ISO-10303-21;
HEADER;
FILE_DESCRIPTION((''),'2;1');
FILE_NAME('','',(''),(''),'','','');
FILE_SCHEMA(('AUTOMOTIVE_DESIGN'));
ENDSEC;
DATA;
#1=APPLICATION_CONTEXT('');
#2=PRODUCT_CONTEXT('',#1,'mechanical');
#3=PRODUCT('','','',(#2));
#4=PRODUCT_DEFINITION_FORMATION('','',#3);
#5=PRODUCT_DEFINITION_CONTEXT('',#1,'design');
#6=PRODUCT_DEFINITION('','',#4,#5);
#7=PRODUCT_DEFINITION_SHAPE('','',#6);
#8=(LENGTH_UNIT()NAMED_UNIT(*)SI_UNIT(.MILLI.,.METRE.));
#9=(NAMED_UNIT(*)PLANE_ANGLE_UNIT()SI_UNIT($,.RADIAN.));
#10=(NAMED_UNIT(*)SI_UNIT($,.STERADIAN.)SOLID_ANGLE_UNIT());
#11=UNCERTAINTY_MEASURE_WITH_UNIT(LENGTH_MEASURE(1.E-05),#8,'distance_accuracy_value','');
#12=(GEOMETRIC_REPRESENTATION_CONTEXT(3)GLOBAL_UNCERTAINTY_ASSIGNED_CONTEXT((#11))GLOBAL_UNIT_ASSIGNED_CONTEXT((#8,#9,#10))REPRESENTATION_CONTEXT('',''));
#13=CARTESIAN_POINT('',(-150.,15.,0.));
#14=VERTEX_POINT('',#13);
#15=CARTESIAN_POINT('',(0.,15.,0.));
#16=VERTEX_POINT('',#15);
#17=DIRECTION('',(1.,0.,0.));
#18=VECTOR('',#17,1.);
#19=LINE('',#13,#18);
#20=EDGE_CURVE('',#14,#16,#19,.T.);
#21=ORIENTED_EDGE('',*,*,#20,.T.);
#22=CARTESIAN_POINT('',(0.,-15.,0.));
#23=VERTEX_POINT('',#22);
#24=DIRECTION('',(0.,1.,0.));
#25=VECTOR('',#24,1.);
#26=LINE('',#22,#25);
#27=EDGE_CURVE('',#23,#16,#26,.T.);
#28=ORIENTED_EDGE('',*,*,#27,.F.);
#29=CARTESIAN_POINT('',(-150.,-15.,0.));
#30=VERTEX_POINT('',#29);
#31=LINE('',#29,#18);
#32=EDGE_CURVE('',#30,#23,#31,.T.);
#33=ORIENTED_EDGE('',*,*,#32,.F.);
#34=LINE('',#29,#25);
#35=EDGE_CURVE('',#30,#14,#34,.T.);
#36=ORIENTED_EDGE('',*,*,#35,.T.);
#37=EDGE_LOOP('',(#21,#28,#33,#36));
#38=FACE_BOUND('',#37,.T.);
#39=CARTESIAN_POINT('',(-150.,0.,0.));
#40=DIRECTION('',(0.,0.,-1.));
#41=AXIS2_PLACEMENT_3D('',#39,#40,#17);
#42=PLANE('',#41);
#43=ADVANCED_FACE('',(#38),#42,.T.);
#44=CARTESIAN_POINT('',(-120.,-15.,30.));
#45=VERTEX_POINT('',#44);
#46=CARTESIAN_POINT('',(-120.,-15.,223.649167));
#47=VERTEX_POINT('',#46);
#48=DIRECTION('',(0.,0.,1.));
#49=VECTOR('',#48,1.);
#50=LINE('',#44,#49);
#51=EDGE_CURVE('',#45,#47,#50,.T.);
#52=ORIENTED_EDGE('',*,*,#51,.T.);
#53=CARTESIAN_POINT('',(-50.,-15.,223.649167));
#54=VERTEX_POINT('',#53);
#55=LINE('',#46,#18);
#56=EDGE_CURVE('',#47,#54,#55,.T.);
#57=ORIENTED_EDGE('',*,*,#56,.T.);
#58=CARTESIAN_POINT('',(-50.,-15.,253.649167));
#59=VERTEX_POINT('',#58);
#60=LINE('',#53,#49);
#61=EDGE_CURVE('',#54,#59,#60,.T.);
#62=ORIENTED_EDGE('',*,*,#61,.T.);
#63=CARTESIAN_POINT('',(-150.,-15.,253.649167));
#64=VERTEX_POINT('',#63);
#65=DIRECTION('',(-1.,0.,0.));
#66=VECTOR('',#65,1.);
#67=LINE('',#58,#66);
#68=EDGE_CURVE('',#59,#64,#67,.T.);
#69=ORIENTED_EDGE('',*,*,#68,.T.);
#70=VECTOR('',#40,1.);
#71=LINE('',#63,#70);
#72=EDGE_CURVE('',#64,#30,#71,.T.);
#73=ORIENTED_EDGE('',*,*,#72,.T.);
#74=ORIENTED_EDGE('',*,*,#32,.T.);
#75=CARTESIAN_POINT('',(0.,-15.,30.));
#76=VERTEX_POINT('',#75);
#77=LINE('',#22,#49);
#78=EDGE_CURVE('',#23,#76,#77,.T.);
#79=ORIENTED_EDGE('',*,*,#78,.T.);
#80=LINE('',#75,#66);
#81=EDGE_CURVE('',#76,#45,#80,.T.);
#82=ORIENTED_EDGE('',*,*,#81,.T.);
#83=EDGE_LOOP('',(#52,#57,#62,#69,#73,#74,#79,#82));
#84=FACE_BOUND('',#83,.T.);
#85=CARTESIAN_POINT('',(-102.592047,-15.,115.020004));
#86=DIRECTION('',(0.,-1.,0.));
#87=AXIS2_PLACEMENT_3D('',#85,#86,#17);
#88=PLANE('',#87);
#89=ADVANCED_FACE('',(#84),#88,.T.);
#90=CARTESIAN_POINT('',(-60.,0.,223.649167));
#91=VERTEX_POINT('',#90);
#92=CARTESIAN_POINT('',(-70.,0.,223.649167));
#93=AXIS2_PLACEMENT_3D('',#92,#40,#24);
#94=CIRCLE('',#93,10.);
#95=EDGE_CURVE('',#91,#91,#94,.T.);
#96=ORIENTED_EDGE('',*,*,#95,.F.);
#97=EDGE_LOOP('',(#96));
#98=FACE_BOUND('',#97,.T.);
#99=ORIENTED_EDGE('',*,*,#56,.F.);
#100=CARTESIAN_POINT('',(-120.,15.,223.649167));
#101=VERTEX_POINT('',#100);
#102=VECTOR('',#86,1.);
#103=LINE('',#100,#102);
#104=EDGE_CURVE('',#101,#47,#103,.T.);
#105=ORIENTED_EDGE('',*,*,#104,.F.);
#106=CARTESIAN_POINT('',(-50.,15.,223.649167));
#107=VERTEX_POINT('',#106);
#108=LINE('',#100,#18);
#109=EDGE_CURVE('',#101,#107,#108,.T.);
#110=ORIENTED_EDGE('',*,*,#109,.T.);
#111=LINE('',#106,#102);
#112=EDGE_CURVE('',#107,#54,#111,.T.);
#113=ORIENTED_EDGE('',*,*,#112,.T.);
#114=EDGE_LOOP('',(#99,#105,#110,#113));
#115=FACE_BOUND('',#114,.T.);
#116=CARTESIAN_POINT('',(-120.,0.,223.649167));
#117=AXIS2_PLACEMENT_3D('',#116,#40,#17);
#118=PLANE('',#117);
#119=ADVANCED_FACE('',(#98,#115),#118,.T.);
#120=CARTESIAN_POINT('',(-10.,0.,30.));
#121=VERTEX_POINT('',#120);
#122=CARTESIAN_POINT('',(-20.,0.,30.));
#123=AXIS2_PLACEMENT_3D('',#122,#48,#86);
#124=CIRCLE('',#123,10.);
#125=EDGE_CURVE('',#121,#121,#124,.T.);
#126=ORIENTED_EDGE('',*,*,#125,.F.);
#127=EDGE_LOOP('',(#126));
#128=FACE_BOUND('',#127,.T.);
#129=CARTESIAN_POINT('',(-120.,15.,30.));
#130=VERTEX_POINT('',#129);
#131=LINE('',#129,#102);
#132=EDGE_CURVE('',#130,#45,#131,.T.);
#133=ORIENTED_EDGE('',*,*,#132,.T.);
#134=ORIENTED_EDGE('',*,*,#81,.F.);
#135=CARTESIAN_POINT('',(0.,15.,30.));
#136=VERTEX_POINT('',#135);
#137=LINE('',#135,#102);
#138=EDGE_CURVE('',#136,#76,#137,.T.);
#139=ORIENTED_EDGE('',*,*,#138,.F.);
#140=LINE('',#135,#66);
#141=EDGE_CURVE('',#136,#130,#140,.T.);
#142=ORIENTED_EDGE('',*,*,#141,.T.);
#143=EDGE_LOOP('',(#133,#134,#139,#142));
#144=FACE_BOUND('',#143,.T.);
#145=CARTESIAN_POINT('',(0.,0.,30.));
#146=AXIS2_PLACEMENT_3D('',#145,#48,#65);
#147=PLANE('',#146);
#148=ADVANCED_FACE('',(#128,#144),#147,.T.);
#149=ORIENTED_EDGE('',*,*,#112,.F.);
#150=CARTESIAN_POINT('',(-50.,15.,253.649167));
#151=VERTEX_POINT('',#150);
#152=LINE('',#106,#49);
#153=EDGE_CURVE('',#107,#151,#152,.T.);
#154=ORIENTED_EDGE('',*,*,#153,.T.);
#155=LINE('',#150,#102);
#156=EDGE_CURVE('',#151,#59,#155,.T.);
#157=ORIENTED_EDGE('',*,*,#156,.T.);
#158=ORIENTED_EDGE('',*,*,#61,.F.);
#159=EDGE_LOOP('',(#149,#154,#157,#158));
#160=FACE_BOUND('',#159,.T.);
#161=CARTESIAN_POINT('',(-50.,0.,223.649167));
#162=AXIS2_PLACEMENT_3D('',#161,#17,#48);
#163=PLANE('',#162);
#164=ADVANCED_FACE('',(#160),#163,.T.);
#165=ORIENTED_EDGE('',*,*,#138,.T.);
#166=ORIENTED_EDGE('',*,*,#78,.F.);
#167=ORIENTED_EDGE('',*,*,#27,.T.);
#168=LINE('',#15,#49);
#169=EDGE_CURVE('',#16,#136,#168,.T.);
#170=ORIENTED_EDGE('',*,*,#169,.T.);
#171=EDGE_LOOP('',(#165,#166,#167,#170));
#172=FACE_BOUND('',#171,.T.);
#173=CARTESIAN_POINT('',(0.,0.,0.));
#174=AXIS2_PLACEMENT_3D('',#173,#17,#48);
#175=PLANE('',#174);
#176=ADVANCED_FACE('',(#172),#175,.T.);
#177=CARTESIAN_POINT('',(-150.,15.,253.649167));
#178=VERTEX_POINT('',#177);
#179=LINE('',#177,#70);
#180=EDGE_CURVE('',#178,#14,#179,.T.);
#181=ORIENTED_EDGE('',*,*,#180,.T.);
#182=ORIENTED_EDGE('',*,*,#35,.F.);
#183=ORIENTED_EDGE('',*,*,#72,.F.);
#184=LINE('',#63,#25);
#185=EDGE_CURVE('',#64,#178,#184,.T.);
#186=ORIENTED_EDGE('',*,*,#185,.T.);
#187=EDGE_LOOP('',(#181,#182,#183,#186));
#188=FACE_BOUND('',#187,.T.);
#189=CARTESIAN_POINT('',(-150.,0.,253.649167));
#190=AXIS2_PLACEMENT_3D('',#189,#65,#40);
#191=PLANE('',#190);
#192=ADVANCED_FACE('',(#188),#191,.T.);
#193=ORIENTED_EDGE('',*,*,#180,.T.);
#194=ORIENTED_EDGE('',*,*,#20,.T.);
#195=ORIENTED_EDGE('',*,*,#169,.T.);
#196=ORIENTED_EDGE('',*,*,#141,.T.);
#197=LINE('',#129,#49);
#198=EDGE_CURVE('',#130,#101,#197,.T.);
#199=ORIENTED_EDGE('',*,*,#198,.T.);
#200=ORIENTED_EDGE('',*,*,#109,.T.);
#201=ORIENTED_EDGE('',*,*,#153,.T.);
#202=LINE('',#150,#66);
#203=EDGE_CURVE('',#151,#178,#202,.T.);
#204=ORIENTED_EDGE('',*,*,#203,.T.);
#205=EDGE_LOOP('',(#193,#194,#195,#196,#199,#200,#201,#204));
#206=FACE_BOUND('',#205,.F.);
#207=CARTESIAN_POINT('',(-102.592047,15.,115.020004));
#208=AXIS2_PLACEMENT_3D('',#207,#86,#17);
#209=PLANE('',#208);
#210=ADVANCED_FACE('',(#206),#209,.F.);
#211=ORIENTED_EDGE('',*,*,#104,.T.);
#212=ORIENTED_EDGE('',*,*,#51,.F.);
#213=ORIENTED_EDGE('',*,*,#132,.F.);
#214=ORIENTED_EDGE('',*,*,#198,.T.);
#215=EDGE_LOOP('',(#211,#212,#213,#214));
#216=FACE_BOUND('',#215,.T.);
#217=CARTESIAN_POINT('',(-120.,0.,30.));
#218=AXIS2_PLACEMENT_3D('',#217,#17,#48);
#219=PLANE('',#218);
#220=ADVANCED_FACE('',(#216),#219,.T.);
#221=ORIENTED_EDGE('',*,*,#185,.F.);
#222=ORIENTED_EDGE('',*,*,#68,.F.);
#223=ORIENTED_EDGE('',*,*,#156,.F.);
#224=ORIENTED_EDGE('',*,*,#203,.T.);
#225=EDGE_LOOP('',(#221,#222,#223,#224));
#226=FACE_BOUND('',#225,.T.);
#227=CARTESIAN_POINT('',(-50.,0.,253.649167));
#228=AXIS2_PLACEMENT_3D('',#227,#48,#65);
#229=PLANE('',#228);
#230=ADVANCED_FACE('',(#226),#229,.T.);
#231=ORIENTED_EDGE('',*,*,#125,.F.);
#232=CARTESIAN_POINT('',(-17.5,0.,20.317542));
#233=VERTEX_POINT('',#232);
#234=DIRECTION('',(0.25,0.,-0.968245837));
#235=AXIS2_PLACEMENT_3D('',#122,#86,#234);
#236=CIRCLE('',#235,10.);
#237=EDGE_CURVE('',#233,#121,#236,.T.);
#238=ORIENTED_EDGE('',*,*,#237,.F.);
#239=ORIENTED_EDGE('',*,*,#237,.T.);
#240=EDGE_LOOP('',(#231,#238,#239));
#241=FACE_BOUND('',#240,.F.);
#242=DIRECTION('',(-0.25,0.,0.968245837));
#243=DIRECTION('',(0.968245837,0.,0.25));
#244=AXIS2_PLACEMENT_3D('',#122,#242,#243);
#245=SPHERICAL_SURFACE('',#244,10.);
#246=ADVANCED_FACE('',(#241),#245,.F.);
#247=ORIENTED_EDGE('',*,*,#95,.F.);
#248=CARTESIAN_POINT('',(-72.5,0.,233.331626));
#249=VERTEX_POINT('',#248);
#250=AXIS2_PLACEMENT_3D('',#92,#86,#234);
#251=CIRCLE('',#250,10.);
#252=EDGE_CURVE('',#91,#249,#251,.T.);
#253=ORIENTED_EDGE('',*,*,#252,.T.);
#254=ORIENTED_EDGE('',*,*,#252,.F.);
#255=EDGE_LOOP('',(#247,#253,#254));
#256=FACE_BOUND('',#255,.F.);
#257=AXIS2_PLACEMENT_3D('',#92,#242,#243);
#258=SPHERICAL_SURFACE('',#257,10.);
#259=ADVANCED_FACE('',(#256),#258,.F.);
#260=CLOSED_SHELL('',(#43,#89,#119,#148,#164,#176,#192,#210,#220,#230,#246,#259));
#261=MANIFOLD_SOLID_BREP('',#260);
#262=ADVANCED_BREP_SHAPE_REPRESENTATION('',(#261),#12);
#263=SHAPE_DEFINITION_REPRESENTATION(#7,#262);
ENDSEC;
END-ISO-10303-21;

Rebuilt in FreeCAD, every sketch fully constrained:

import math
import FreeCAD as App
import Part
import Sketcher
Q = App.Units.Quantity


def add_polygon(sketch, points):
    """Adds a closed chain of lines whose ends are joined by coincident constraints."""
    first, n = sketch.GeometryCount, len(points)
    for a, b in zip(points, points[1:] + points[:1]):
        sketch.addGeometry(Part.LineSegment(App.Vector(*a, 0), App.Vector(*b, 0)), False)
    for i in range(n):
        sketch.addConstraint(Sketcher.Constraint("Coincident", first + i, 2, first + (i + 1) % n, 1))

doc = App.newDocument("Part")
body = doc.addObject("PartDesign::Body", "Body")

sketch1 = doc.addObject("Sketcher::SketchObject", "Sketch")
body.addObject(sketch1)
sketch1.AttachmentSupport = (doc.XZ_Plane, [""])
sketch1.MapMode = "FlatFace"
add_polygon(sketch1, [(0, 0), (0, 30), (-120, 30), (-120, 224), (-50, 224), (-50, 254), (-150, 254), (-150, 0)])
sketch1.addConstraint([
    Sketcher.Constraint("Vertical", 0),
    Sketcher.Constraint("Horizontal", 1),
    Sketcher.Constraint("Vertical", 2),
    Sketcher.Constraint("Horizontal", 3),
    Sketcher.Constraint("Vertical", 4),
    Sketcher.Constraint("Horizontal", 5),
    Sketcher.Constraint("Vertical", 6),
    Sketcher.Constraint("Horizontal", 7),
    Sketcher.Constraint("Coincident", 7, 2, -1, 1),
    Sketcher.Constraint("Equal", 0, 4),
    Sketcher.Constraint("DistanceX", 1, 2, 1, 1, Q("120 mm")),
    Sketcher.Constraint("DistanceX", 3, 1, 3, 2, Q("70 mm")),
    Sketcher.Constraint("DistanceX", 5, 2, 5, 1, Q("100 mm")),
    Sketcher.Constraint("DistanceY", 0, 1, 0, 2, Q("30 mm")),
    Sketcher.Constraint("DistanceY", 2, 1, 2, 2, Q("193.649167 mm")),
])
pad1 = doc.addObject("PartDesign::Pad", "Pad")
body.addObject(pad1)
pad1.Profile = sketch1
pad1.Length = 30
pad1.Midplane = True

sketch2 = doc.addObject("Sketcher::SketchObject", "Sketch001")
body.addObject(sketch2)
sketch2.AttachmentSupport = (doc.XZ_Plane, [""])
sketch2.MapMode = "FlatFace"
sketch2.addGeometry([
    Part.LineSegment(App.Vector(-22, 40, 0), App.Vector(-18, 20, 0)),
    Part.ArcOfCircle(Part.Circle(App.Vector(-20, 30, 0), App.Vector(0, 0, 1), 10), math.radians(-76), math.radians(104)),
    Part.LineSegment(App.Vector(-72, 233, 0), App.Vector(-68, 214, 0)),
    Part.ArcOfCircle(Part.Circle(App.Vector(-70, 224, 0), App.Vector(0, 0, 1), 10), math.radians(-76), math.radians(104)),
], False)
sketch2.addGeometry(Part.LineSegment(App.Vector(-17, 20, 0), App.Vector(-73, 233, 0)), True)
sketch2.addConstraint([
    Sketcher.Constraint("Coincident", 0, 1, 1, 2),
    Sketcher.Constraint("Coincident", 1, 1, 0, 2),
    Sketcher.Constraint("Coincident", 2, 1, 3, 2),
    Sketcher.Constraint("Coincident", 3, 1, 2, 2),
    Sketcher.Constraint("Coincident", 4, 1, 1, 1),
    Sketcher.Constraint("Coincident", 4, 2, 2, 1),
    Sketcher.Constraint("Equal", 1, 3),
    Sketcher.Constraint("Parallel", 0, 2),
    Sketcher.Constraint("Parallel", 2, 4),
    Sketcher.Constraint("Radius", 1, Q("10 mm")),
    Sketcher.Constraint("Distance", 4, Q("220 mm")),
    Sketcher.Constraint("DistanceX", 1, 3, -1, 1, Q("20 mm")),
    Sketcher.Constraint("DistanceY", -1, 1, 1, 3, Q("30 mm")),
    Sketcher.Constraint("DistanceX", 3, 3, -1, 1, Q("70 mm")),
    Sketcher.Constraint("DistanceX", 0, 1, 1, 1, Q("5 mm")),
    Sketcher.Constraint("DistanceX", 0, 1, -1, 1, Q("22.5 mm")),
])
groove = doc.addObject("PartDesign::Groove", "Groove")
body.addObject(groove)
groove.Profile = sketch2
groove.ReferenceAxis = (sketch2, ["Axis0"])
groove.Angle = 360

doc.recompute()
